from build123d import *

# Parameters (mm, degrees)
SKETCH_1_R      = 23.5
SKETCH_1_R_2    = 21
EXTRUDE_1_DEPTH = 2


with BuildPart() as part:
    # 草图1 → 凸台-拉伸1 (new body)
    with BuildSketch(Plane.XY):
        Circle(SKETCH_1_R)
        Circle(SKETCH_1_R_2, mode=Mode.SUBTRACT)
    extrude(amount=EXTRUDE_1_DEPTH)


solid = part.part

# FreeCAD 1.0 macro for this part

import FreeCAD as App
import Part
import Sketcher

V = App.Vector

doc = App.newDocument("Part")
params = doc.addObject("Spreadsheet::Sheet", "Params")
for row, (alias, value) in enumerate([
    ("sketch1_diameter", "47 mm"),
    ("sketch1_diameter2", "42 mm"),
    ("pad1_length", "2 mm"),
], start=1):
    params.set(f"A{row}", alias)
    params.set(f"B{row}", "=" + value)
    params.setAlias(f"B{row}", alias)

body = doc.addObject("PartDesign::Body", "Body")

sketch1 = body.newObject("Sketcher::SketchObject", "Sketch")
sketch1.AttachmentSupport = (doc.getObject("XY_Plane"), [""])
sketch1.MapMode = "FlatFace"
sketch1.addGeometry([
    Part.Circle(V(0, 0, 0), V(0, 0, 1), 23.5),
    Part.Circle(V(0, 0, 0), V(0, 0, 1), 21),
], False)
sketch1.addConstraint([
    Sketcher.Constraint("Coincident", 0, 3, -1, 1),
    Sketcher.Constraint("Coincident", 1, 3, -1, 1),
    Sketcher.Constraint("Diameter", 0, 47.0),
    Sketcher.Constraint("Diameter", 1, 42.0),
])
sketch1.setExpression("Constraints[2]", "Params.sketch1_diameter")
sketch1.setExpression("Constraints[3]", "Params.sketch1_diameter2")
pad1 = body.newObject("PartDesign::Pad", "Pad")
pad1.Profile = sketch1
pad1.setExpression("Length", "Params.pad1_length")

doc.recompute()
